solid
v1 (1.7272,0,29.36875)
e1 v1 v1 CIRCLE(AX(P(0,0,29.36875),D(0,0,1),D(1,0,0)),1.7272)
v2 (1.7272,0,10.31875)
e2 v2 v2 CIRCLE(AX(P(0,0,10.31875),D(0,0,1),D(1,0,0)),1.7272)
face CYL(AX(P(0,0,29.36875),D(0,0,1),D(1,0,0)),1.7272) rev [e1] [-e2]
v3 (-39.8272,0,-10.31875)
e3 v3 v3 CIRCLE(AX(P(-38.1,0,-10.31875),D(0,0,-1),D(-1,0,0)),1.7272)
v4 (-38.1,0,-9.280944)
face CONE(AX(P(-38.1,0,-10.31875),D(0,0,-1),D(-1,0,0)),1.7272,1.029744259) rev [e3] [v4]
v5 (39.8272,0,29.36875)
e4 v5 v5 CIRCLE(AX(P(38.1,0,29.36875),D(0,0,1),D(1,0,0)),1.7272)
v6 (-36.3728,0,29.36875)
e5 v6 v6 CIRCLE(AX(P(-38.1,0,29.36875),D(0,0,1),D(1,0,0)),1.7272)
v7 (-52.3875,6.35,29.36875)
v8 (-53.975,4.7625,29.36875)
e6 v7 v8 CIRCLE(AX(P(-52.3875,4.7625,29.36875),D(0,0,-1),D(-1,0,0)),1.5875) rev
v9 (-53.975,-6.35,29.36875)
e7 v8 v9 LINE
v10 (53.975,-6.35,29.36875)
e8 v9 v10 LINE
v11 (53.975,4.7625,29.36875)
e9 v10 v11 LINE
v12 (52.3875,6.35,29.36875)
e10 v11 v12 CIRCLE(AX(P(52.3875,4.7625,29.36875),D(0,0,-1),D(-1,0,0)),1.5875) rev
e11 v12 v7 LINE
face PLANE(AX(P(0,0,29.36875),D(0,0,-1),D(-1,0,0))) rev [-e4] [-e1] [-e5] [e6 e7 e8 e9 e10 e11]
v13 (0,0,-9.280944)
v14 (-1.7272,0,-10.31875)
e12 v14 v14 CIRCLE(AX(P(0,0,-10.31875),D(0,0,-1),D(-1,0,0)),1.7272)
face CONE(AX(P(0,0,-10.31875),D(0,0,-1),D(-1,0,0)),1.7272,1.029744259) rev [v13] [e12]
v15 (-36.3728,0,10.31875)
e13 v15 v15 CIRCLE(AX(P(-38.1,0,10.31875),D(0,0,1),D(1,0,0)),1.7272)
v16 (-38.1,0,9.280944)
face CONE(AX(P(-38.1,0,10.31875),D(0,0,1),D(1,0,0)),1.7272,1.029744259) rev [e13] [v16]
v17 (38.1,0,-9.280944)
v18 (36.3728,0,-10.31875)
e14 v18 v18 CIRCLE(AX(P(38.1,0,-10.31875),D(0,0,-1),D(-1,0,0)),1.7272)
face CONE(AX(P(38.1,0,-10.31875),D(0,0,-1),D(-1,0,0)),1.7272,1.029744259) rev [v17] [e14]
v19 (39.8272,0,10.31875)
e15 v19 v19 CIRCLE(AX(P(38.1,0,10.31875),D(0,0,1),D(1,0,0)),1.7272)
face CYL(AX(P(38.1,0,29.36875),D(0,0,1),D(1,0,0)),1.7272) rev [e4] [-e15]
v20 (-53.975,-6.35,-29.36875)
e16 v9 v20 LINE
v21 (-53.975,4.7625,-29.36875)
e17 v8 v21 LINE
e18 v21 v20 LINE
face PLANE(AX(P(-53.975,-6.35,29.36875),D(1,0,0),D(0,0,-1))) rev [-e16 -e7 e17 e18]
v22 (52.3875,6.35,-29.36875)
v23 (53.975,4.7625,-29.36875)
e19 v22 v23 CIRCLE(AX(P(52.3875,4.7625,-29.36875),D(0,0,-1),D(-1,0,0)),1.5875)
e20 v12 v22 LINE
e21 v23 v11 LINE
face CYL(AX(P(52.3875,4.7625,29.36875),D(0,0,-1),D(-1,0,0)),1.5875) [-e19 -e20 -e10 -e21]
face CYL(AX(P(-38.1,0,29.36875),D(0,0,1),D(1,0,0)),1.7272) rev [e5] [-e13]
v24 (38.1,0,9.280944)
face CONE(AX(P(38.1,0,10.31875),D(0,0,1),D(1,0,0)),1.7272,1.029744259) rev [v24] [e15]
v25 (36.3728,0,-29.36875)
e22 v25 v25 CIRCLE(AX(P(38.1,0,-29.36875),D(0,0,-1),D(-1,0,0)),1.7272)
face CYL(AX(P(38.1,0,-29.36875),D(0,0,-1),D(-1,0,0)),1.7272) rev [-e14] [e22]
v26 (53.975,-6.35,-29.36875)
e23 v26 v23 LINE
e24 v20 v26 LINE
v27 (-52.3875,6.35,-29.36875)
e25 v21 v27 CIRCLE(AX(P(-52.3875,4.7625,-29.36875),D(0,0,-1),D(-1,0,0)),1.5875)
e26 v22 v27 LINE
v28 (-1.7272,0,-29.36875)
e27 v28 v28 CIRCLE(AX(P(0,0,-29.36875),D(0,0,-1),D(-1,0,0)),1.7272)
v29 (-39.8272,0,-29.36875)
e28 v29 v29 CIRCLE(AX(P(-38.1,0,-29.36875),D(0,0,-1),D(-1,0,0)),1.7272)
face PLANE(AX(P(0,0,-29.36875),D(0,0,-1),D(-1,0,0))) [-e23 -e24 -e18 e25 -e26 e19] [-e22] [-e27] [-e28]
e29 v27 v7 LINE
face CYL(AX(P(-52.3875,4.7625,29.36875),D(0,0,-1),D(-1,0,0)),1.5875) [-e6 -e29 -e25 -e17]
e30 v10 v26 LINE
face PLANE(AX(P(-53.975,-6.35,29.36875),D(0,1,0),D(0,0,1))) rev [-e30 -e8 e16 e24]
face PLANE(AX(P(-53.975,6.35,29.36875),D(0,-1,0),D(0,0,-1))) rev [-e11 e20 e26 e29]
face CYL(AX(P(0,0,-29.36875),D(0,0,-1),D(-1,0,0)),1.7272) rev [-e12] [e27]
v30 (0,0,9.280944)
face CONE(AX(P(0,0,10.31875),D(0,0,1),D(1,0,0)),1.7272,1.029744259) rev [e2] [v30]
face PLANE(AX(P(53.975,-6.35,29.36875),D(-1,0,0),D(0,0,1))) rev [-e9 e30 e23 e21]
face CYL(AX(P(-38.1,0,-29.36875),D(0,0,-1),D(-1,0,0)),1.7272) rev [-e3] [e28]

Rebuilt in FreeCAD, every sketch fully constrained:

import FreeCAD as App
import Part
import Sketcher

V = App.Vector
Q = App.Units.Quantity


def edges_at(feature, points):
    """Names of the edges that pass closest to the given points."""
    edges = feature.Shape.Edges
    near = lambda p: min(range(len(edges)), key=lambda i: edges[i].distToShape(Part.Vertex(*p))[0])
    return sorted({f"Edge{near(p) + 1}" for p in points})

doc = App.newDocument("Part")
params = doc.addObject("Spreadsheet::Sheet", "Params")
for row, (alias, value) in enumerate([
    ("sketch1_height", "0.5 in"),
    ("sketch1_width", "4.25 in"),
    ("pad1_length", "2.3125 in"),
    ("sketch2_height", "0.75 in"),
    ("sketch2_width", "0.068 in"),
    ("groove_angle", "360 deg"),
    ("linearpattern_pitch", "3 in"),
    ("linearpattern2_pitch", "1.5 in"),
    ("sketch3_height", "0.75 in"),
    ("sketch3_width", "0.068 in"),
    ("groove2_angle", "360 deg"),
    ("sketch4_height", "0.75 in"),
    ("sketch4_width", "0.068 in"),
    ("groove3_angle", "360 deg"),
    ("fillet_radius", "0.0625 in"),
], start=1):
    params.set(f"A{row}", alias)
    params.set(f"B{row}", "=" + value)
    params.setAlias(f"B{row}", alias)

body = doc.addObject("PartDesign::Body", "Body")

sketch1 = doc.addObject("Sketcher::SketchObject", "Sketch")
body.addObject(sketch1)
sketch1.AttachmentSupport = (doc.XY_Plane, [""])
sketch1.MapMode = "FlatFace"
sketch1.addGeometry(Part.LineSegment(V(-53.975, 6.35, 0), V(-53.975, -6.35, 0)), False)
sketch1.addGeometry(Part.LineSegment(V(-53.975, -6.35, 0), V(53.975, -6.35, 0)), False)
sketch1.addGeometry(Part.LineSegment(V(53.975, -6.35, 0), V(53.975, 6.35, 0)), False)
sketch1.addGeometry(Part.LineSegment(V(53.975, 6.35, 0), V(-53.975, 6.35, 0)), False)
sketch1.addConstraint(Sketcher.Constraint("Coincident", 0, 2, 1, 1))
sketch1.addConstraint(Sketcher.Constraint("Coincident", 1, 2, 2, 1))
sketch1.addConstraint(Sketcher.Constraint("Coincident", 2, 2, 3, 1))
sketch1.addConstraint(Sketcher.Constraint("Coincident", 3, 2, 0, 1))
sketch1.addConstraint(Sketcher.Constraint("Vertical", 0))
sketch1.addConstraint(Sketcher.Constraint("Horizontal", 1))
sketch1.addConstraint(Sketcher.Constraint("Vertical", 2))
sketch1.addConstraint(Sketcher.Constraint("Horizontal", 3))
sketch1.addConstraint(Sketcher.Constraint("Symmetric", 0, 2, 2, 2, -1, 1))
sketch1.addConstraint(Sketcher.Constraint("DistanceY", 0, 2, 0, 1, Q("0.5 in")))
sketch1.addConstraint(Sketcher.Constraint("DistanceX", 1, 1, 1, 2, Q("4.25 in")))
sketch1.setExpression("Constraints[9]", "Params.sketch1_height")
sketch1.setExpression("Constraints[10]", "Params.sketch1_width")
pad1 = doc.addObject("PartDesign::Pad", "Pad")
body.addObject(pad1)
pad1.Profile = sketch1
pad1.setExpression("Length", "Params.pad1_length")
pad1.Midplane = True

sketch2 = doc.addObject("Sketcher::SketchObject", "Sketch001")
body.addObject(sketch2)
sketch2.AttachmentSupport = (doc.YZ_Plane, [""])
sketch2.MapMode = "FlatFace"
sketch2.AttachmentOffset = App.Placement(V(0, 0, -1.5 * 25.4), App.Rotation())
sketch2.addGeometry(Part.LineSegment(V(0, 9.280944, 0), V(0, 29.36875, 0)), False)
sketch2.addGeometry(Part.LineSegment(V(0, 29.36875, 0), V(-1.7272, 29.36875, 0)), False)
sketch2.addGeometry(Part.LineSegment(V(-1.7272, 29.36875, 0), V(-1.7272, 10.31875, 0)), False)
sketch2.addGeometry(Part.LineSegment(V(-1.7272, 10.31875, 0), V(0, 9.280944, 0)), False)
sketch2.addConstraint(Sketcher.Constraint("Coincident", 0, 2, 1, 1))
sketch2.addConstraint(Sketcher.Constraint("Coincident", 1, 2, 2, 1))
sketch2.addConstraint(Sketcher.Constraint("Coincident", 2, 2, 3, 1))
sketch2.addConstraint(Sketcher.Constraint("Coincident", 3, 2, 0, 1))
sketch2.addConstraint(Sketcher.Constraint("Vertical", 0))
sketch2.addConstraint(Sketcher.Constraint("Horizontal", 1))
sketch2.addConstraint(Sketcher.Constraint("Vertical", 2))
sketch2.addConstraint(Sketcher.Constraint("PointOnObject", 0, 2, -2))
sketch2.addConstraint(Sketcher.Constraint("Angle", 3, Q("-31 deg")))
sketch2.addConstraint(Sketcher.Constraint("DistanceY", 2, 2, 2, 1, Q("0.75 in")))
sketch2.addConstraint(Sketcher.Constraint("DistanceX", 1, 2, 1, 1, Q("0.068 in")))
sketch2.addConstraint(Sketcher.Constraint("DistanceY", -1, 1, 0, 2, Q("1.15625 in")))
sketch2.setExpression("Constraints[9]", "Params.sketch2_height")
sketch2.setExpression("Constraints[10]", "Params.sketch2_width")
groove = doc.addObject("PartDesign::Groove", "Groove")
body.addObject(groove)
groove.Profile = sketch2
groove.ReferenceAxis = (sketch2, ["V_Axis"])
groove.setExpression("Angle", "Params.groove_angle")
doc.recompute()

linearpattern = doc.addObject("PartDesign::LinearPattern", "LinearPattern")
body.addObject(linearpattern)
linearpattern.Originals = [groove]
linearpattern.Direction = (doc.X_Axis, [""])
linearpattern.Mode = "offset"
linearpattern.setExpression("Offset", "Params.linearpattern_pitch")
linearpattern.Occurrences = 2
body.Tip = linearpattern
doc.recompute()

linearpattern2 = doc.addObject("PartDesign::LinearPattern", "LinearPattern001")
body.addObject(linearpattern2)
linearpattern2.Originals = [groove]
linearpattern2.Direction = (doc.X_Axis, [""])
linearpattern2.Mode = "offset"
linearpattern2.setExpression("Offset", "Params.linearpattern2_pitch")
linearpattern2.Occurrences = 2
body.Tip = linearpattern2
doc.recompute()

mirrored = doc.addObject("PartDesign::Mirrored", "Mirrored")
body.addObject(mirrored)
mirrored.Originals = [groove]
mirrored.MirrorPlane = (doc.XY_Plane, [""])
body.Tip = mirrored

sketch3 = doc.addObject("Sketcher::SketchObject", "Sketch002")
body.addObject(sketch3)
sketch3.AttachmentSupport = (doc.YZ_Plane, [""])
sketch3.MapMode = "FlatFace"
sketch3.AttachmentOffset = App.Placement(V(0, 0, 1.5 * 25.4), App.Rotation())
sketch3.addGeometry(Part.LineSegment(V(0, -29.36875, 0), V(0, -9.280944, 0)), False)
sketch3.addGeometry(Part.LineSegment(V(0, -9.280944, 0), V(-1.7272, -10.31875, 0)), False)
sketch3.addGeometry(Part.LineSegment(V(-1.7272, -10.31875, 0), V(-1.7272, -29.36875, 0)), False)
sketch3.addGeometry(Part.LineSegment(V(-1.7272, -29.36875, 0), V(0, -29.36875, 0)), False)
sketch3.addConstraint(Sketcher.Constraint("Coincident", 0, 2, 1, 1))
sketch3.addConstraint(Sketcher.Constraint("Coincident", 1, 2, 2, 1))
sketch3.addConstraint(Sketcher.Constraint("Coincident", 2, 2, 3, 1))
sketch3.addConstraint(Sketcher.Constraint("Coincident", 3, 2, 0, 1))
sketch3.addConstraint(Sketcher.Constraint("Vertical", 0))
sketch3.addConstraint(Sketcher.Constraint("Vertical", 2))
sketch3.addConstraint(Sketcher.Constraint("Horizontal", 3))
sketch3.addConstraint(Sketcher.Constraint("PointOnObject", 0, 2, -2))
sketch3.addConstraint(Sketcher.Constraint("Angle", 1, Q("-149 deg")))
sketch3.addConstraint(Sketcher.Constraint("DistanceY", 2, 2, 2, 1, Q("0.75 in")))
sketch3.addConstraint(Sketcher.Constraint("DistanceX", 3, 1, 3, 2, Q("0.068 in")))
sketch3.addConstraint(Sketcher.Constraint("DistanceY", 1, 2, -1, 1, Q("0.40625 in")))
sketch3.setExpression("Constraints[9]", "Params.sketch3_height")
sketch3.setExpression("Constraints[10]", "Params.sketch3_width")
groove2 = doc.addObject("PartDesign::Groove", "Groove001")
body.addObject(groove2)
groove2.Profile = sketch3
groove2.ReferenceAxis = (sketch3, ["V_Axis"])
groove2.setExpression("Angle", "Params.groove2_angle")

sketch4 = doc.addObject("Sketcher::SketchObject", "Sketch003")
body.addObject(sketch4)
sketch4.AttachmentSupport = (doc.YZ_Plane, [""])
sketch4.MapMode = "FlatFace"
sketch4.addGeometry(Part.LineSegment(V(0, -29.36875, 0), V(0, -9.280944, 0)), False)
sketch4.addGeometry(Part.LineSegment(V(0, -9.280944, 0), V(-1.7272, -10.31875, 0)), False)
sketch4.addGeometry(Part.LineSegment(V(-1.7272, -10.31875, 0), V(-1.7272, -29.36875, 0)), False)
sketch4.addGeometry(Part.LineSegment(V(-1.7272, -29.36875, 0), V(0, -29.36875, 0)), False)
sketch4.addConstraint(Sketcher.Constraint("Coincident", 0, 2, 1, 1))
sketch4.addConstraint(Sketcher.Constraint("Coincident", 1, 2, 2, 1))
sketch4.addConstraint(Sketcher.Constraint("Coincident", 2, 2, 3, 1))
sketch4.addConstraint(Sketcher.Constraint("Coincident", 3, 2, 0, 1))
sketch4.addConstraint(Sketcher.Constraint("Vertical", 0))
sketch4.addConstraint(Sketcher.Constraint("Vertical", 2))
sketch4.addConstraint(Sketcher.Constraint("Horizontal", 3))
sketch4.addConstraint(Sketcher.Constraint("PointOnObject", 0, 2, -2))
sketch4.addConstraint(Sketcher.Constraint("Angle", 1, Q("-149 deg")))
sketch4.addConstraint(Sketcher.Constraint("DistanceY", 2, 2, 2, 1, Q("0.75 in")))
sketch4.addConstraint(Sketcher.Constraint("DistanceX", 3, 1, 3, 2, Q("0.068 in")))
sketch4.addConstraint(Sketcher.Constraint("DistanceY", 1, 2, -1, 1, Q("0.40625 in")))
sketch4.setExpression("Constraints[9]", "Params.sketch4_height")
sketch4.setExpression("Constraints[10]", "Params.sketch4_width")
groove3 = doc.addObject("PartDesign::Groove", "Groove002")
body.addObject(groove3)
groove3.Profile = sketch4
groove3.ReferenceAxis = (sketch4, ["V_Axis"])
groove3.setExpression("Angle", "Params.groove3_angle")
doc.recompute()

fillet = doc.addObject("PartDesign::Fillet", "Fillet")
body.addObject(fillet)
fillet.Base = (groove3, edges_at(groove3, [(-53.975, 6.35, 0), (53.975, 6.35, 0)]))
fillet.setExpression("Radius", "Params.fillet_radius")

doc.recompute()
